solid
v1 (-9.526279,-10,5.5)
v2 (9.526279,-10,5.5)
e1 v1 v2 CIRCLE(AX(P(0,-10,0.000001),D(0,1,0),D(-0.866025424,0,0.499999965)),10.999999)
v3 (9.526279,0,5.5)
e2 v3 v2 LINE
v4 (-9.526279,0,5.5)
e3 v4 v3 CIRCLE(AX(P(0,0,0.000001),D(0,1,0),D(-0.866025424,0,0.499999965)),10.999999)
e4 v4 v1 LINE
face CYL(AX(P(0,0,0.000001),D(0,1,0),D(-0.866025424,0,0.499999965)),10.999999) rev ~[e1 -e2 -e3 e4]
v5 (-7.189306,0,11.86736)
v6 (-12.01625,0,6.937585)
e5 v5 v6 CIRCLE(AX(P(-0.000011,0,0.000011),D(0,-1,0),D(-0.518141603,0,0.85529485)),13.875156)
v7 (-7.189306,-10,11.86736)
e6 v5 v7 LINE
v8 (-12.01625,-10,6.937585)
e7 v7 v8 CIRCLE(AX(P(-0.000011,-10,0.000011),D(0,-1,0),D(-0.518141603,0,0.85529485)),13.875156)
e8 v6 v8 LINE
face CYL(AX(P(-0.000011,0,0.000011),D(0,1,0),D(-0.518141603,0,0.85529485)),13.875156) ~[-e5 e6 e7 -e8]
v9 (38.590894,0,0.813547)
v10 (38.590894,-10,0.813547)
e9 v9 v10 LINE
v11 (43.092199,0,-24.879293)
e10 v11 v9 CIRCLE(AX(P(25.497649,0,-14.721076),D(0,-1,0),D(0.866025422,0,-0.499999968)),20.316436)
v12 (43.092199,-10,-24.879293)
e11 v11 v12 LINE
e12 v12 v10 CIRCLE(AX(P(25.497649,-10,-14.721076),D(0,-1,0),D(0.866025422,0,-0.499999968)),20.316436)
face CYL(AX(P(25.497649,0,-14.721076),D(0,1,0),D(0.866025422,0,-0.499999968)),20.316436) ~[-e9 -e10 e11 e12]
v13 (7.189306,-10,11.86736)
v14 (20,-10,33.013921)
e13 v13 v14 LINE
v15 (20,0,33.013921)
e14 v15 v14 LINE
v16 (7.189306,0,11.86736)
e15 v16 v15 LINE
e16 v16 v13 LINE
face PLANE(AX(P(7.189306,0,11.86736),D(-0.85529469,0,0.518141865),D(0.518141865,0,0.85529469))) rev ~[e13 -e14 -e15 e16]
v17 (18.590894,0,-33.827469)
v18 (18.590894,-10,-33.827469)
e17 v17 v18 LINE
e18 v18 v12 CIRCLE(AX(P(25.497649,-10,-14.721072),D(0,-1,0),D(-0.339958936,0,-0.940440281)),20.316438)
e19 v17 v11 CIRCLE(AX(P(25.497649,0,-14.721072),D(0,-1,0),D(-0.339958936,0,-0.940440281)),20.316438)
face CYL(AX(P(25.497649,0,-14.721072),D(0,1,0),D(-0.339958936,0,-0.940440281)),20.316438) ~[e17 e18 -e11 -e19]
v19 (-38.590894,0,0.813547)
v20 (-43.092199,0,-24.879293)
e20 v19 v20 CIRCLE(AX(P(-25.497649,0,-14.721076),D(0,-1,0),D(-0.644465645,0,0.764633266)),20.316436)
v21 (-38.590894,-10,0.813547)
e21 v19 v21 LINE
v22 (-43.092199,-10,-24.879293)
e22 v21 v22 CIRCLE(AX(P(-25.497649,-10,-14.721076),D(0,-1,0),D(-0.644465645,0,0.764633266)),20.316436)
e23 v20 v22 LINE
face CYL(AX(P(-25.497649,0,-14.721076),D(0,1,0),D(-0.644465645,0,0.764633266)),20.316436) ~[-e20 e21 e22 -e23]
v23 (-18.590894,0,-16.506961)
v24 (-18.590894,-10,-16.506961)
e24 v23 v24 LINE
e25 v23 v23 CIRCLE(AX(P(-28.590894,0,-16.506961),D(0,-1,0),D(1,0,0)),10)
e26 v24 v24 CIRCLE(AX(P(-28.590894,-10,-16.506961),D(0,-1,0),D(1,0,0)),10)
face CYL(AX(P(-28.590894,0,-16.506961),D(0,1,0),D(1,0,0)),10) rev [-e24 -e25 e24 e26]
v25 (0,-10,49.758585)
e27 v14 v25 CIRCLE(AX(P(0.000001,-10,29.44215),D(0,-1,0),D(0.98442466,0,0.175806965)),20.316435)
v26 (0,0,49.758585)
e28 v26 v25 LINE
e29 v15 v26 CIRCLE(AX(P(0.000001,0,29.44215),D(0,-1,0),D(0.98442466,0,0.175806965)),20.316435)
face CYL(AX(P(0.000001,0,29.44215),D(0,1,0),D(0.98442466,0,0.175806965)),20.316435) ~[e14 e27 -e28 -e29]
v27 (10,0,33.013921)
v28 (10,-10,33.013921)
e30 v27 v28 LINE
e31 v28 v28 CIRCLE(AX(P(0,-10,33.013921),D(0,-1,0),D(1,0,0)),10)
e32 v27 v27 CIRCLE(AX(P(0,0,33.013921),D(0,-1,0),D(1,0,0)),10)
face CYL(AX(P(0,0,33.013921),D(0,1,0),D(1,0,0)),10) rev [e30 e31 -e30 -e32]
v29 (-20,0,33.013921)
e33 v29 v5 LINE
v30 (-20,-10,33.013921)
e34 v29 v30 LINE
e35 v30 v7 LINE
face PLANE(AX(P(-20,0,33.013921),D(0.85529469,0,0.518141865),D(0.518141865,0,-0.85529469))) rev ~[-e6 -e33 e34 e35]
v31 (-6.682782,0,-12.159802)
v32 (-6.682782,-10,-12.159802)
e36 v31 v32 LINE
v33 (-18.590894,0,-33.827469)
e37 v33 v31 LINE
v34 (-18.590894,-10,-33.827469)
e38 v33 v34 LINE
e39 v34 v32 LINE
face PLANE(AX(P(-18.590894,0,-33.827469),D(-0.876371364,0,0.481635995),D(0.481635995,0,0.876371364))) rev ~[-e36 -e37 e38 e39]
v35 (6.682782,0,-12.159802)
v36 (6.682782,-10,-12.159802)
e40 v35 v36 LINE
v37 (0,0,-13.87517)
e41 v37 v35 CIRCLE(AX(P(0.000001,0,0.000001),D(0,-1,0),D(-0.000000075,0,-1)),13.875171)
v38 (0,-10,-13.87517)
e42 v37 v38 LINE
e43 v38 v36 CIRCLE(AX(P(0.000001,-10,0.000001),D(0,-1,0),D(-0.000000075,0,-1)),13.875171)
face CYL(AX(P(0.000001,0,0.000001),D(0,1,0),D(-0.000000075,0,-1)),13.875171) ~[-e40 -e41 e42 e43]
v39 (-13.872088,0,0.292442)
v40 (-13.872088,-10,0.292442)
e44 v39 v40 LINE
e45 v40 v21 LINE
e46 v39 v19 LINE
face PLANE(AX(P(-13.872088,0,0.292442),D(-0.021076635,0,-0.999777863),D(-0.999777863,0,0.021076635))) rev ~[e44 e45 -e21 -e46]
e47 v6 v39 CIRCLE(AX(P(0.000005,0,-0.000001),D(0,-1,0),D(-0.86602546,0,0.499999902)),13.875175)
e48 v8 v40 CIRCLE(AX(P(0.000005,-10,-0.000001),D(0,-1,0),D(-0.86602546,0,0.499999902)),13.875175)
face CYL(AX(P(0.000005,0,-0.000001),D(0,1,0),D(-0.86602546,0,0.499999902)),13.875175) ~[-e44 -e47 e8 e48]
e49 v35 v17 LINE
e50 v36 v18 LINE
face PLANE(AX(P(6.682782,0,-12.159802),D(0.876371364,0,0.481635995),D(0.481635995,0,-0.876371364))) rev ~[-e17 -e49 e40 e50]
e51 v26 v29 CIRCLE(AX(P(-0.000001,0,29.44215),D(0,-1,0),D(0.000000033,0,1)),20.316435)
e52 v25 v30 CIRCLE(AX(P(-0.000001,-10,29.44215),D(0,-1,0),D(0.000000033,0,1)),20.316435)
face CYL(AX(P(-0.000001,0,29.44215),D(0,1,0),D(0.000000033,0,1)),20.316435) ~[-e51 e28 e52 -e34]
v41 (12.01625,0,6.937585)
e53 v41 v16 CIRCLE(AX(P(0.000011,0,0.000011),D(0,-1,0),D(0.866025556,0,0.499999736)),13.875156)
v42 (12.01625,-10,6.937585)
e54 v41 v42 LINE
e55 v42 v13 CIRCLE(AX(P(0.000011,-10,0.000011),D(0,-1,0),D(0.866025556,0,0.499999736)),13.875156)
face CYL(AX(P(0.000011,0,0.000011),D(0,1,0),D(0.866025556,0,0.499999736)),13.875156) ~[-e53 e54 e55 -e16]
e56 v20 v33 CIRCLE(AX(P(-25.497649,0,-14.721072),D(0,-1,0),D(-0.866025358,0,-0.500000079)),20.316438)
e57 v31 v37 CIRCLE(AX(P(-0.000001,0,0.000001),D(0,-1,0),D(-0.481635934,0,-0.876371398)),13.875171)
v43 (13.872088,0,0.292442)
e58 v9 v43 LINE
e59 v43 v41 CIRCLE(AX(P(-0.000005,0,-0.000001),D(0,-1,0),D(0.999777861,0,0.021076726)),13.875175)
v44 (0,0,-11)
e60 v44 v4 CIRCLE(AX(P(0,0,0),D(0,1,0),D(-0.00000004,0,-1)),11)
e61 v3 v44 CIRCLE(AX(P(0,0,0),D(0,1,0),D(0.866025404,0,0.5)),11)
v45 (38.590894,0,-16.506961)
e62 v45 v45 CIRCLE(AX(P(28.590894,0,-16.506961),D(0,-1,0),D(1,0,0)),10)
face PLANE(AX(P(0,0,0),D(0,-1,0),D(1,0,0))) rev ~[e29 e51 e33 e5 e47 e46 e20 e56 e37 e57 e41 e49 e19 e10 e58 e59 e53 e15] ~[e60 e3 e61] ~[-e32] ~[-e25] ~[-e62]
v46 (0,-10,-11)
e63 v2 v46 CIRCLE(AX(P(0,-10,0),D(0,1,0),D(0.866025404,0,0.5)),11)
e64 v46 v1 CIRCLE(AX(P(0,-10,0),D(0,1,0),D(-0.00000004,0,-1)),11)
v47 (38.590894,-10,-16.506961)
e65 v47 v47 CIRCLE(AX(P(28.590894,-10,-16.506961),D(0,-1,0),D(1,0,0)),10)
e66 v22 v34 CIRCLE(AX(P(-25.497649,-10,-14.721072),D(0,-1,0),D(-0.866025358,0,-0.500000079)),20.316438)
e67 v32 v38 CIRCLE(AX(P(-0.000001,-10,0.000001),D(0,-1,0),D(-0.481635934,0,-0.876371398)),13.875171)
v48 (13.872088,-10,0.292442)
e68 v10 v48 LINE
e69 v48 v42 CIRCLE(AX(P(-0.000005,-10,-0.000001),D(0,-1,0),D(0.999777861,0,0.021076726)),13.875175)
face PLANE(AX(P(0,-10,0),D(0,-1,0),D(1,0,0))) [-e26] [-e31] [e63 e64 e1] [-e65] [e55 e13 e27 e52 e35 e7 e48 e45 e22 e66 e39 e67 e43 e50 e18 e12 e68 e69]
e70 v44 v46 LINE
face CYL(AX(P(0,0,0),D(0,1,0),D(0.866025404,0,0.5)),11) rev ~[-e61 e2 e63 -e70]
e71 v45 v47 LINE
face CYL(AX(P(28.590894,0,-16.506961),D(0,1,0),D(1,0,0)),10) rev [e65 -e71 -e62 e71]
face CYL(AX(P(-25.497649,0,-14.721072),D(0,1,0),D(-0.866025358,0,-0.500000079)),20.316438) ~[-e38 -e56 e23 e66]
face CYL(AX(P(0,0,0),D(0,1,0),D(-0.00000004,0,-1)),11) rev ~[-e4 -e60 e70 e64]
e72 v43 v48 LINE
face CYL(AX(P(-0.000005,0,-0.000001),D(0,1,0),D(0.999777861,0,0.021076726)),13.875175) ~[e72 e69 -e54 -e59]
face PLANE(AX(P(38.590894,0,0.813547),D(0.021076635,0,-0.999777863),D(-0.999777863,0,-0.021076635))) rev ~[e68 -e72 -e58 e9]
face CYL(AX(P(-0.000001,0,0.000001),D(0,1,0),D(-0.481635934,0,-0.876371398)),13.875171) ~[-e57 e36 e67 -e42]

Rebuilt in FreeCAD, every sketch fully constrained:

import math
import FreeCAD as App
import Part
import Sketcher
from FreeCAD import Vector

doc = App.newDocument("Part")
body = doc.addObject("PartDesign::Body", "Body")

# Sketch on XZ plane
sketch1 = body.newObject("Sketcher::SketchObject", "Sketch")
sketch1.AttachmentSupport = (doc.getObject("XZ_Plane"), [""])
sketch1.MapMode = "FlatFace"
sketch1.addGeometry([
    Part.LineSegment(Vector(-20, 33.013921, 0), Vector(-7.189306, 11.86736, 0)),  # 0
    Part.ArcOfCircle(Part.Circle(Vector(-0.000011, 0.000011, 0), Vector(0, 0, 1), 13.875156), math.radians(121.207676), math.radians(150.000017)),  # 1
    Part.ArcOfCircle(Part.Circle(Vector(0.000005, -0.000001, 0), Vector(0, 0, 1), 13.875175), math.radians(150.000006), math.radians(178.792303)),  # 2
    Part.LineSegment(Vector(-13.872088, 0.292442, 0), Vector(-38.590894, 0.813547, 0)),  # 3
    Part.ArcOfCircle(Part.Circle(Vector(-25.497649, -14.721076, 0), Vector(0, 0, 1), 20.316436), math.radians(130.125623), math.radians(209.999998)),  # 4
    Part.ArcOfCircle(Part.Circle(Vector(-25.497649, -14.721072, 0), Vector(0, 0, 1), 20.316438), math.radians(-149.999995), math.radians(-70.125628)),  # 5
    Part.LineSegment(Vector(-18.590894, -33.827469, 0), Vector(-6.682782, -12.159802, 0)),  # 6
    Part.ArcOfCircle(Part.Circle(Vector(-0.000001, 0.000001, 0), Vector(0, 0, 1), 13.875171), math.radians(-118.792302), math.radians(-89.999996)),  # 7
    Part.ArcOfCircle(Part.Circle(Vector(0.000001, 0.000001, 0), Vector(0, 0, 1), 13.875171), math.radians(-90.000004), math.radians(-61.207698)),  # 8
    Part.LineSegment(Vector(6.682782, -12.159802, 0), Vector(18.590894, -33.827469, 0)),  # 9
    Part.ArcOfCircle(Part.Circle(Vector(25.497649, -14.721072, 0), Vector(0, 0, 1), 20.316438), math.radians(-109.874372), math.radians(-30.000005)),  # 10
    Part.ArcOfCircle(Part.Circle(Vector(25.497649, -14.721076, 0), Vector(0, 0, 1), 20.316436), math.radians(-29.999998), math.radians(49.874377)),  # 11
    Part.LineSegment(Vector(38.590894, 0.813547, 0), Vector(13.872088, 0.292442, 0)),  # 12
    Part.ArcOfCircle(Part.Circle(Vector(-0.000005, -0.000001, 0), Vector(0, 0, 1), 13.875175), math.radians(1.207697), math.radians(29.999994)),  # 13
    Part.ArcOfCircle(Part.Circle(Vector(0.000011, 0.000011, 0), Vector(0, 0, 1), 13.875156), math.radians(29.999983), math.radians(58.792324)),  # 14
    Part.LineSegment(Vector(7.189306, 11.86736, 0), Vector(20, 33.013921, 0)),  # 15
    Part.ArcOfCircle(Part.Circle(Vector(0.000001, 29.44215, 0), Vector(0, 0, 1), 20.316435), math.radians(10.125622), math.radians(90.000002)),  # 16
    Part.ArcOfCircle(Part.Circle(Vector(-0.000001, 29.44215, 0), Vector(0, 0, 1), 20.316435), math.radians(89.999998), math.radians(169.874378)),  # 17
    Part.Circle(Vector(-28.590894, -16.506961, 0), Vector(0, 0, 1), 10),  # 18
    Part.Circle(Vector(28.590894, -16.506961, 0), Vector(0, 0, 1), 10),  # 19
    Part.ArcOfCircle(Part.Circle(Vector(0, 0, 0), Vector(0, 0, 1), 11), math.radians(150), math.radians(269.999998)),  # 20
    Part.ArcOfCircle(Part.Circle(Vector(0, 0.000001, 0), Vector(0, 0, 1), 10.999999), math.radians(29.999998), math.radians(150.000002)),  # 21
    Part.ArcOfCircle(Part.Circle(Vector(0, 0, 0), Vector(0, 0, 1), 11), math.radians(-89.999998), math.radians(30)),  # 22
    Part.Circle(Vector(0, 33.013921, 0), Vector(0, 0, 1), 10),  # 23
], False)
sketch1.addConstraint([
    Sketcher.Constraint("Coincident", 0, 2, 1, 1),
    Sketcher.Constraint("Tangent", 1, 2, 2, 1),
    Sketcher.Constraint("Coincident", 2, 2, 3, 1),
    Sketcher.Constraint("Coincident", 3, 2, 4, 1),
    Sketcher.Constraint("Tangent", 4, 2, 5, 1),
    Sketcher.Constraint("Coincident", 5, 2, 6, 1),
    Sketcher.Constraint("Coincident", 6, 2, 7, 1),
    Sketcher.Constraint("Tangent", 7, 2, 8, 1),
    Sketcher.Constraint("Coincident", 8, 2, 9, 1),
    Sketcher.Constraint("Coincident", 9, 2, 10, 1),
    Sketcher.Constraint("Tangent", 10, 2, 11, 1),
    Sketcher.Constraint("Coincident", 11, 2, 12, 1),
    Sketcher.Constraint("Coincident", 12, 2, 13, 1),
    Sketcher.Constraint("Tangent", 13, 2, 14, 1),
    Sketcher.Constraint("Coincident", 14, 2, 15, 1),
    Sketcher.Constraint("Coincident", 15, 2, 16, 1),
    Sketcher.Constraint("Tangent", 16, 2, 17, 1),
    Sketcher.Constraint("Coincident", 17, 2, 0, 1),
    Sketcher.Constraint("Tangent", 20, 1, 21, 2),
    Sketcher.Constraint("Tangent", 21, 1, 22, 2),
    Sketcher.Constraint("Tangent", 22, 1, 20, 2),
    Sketcher.Constraint("Coincident", 2, 3, -1, 1),
    Sketcher.Constraint("Coincident", 7, 3, -1, 1),
    Sketcher.Constraint("Coincident", 13, 3, -1, 1),
    Sketcher.Constraint("Coincident", 20, 3, -1, 1),
    Sketcher.Constraint("Equal", 7, 8),
    Sketcher.Constraint("Equal", 5, 10),
    Sketcher.Constraint("Equal", 4, 11),
    Sketcher.Constraint("Equal", 2, 13),
    Sketcher.Constraint("Equal", 1, 14),
    Sketcher.Constraint("Equal", 11, 16),
    Sketcher.Constraint("Equal", 16, 17),
    Sketcher.Constraint("Equal", 18, 19),
    Sketcher.Constraint("Equal", 19, 23),
    Sketcher.Constraint("Symmetric", 4, 3, 10, 3, -2),
    Sketcher.Constraint("Symmetric", 18, 3, 19, 3, -2),
    Sketcher.Constraint("Symmetric", 5, 2, 9, 2, -2),
    Sketcher.Constraint("Symmetric", 15, 2, 17, 2, -2),
    Sketcher.Constraint("PointOnObject", 23, 3, -2),
    Sketcher.Constraint("PointOnObject", 7, 2, -2),
    Sketcher.Constraint("PointOnObject", 16, 2, -2),
    Sketcher.Constraint("PointOnObject", 22, 1, -2),
    Sketcher.Constraint("Horizontal", 6, 2, 8, 2),
    Sketcher.Constraint("Horizontal", 4, 2, 10, 2),
    Sketcher.Constraint("Horizontal", 3, 2, 11, 2),
    Sketcher.Constraint("Horizontal", 2, 2, 12, 2),
    Sketcher.Constraint("Horizontal", 1, 2, 13, 2),
    Sketcher.Constraint("Horizontal", 0, 2, 14, 2),
    Sketcher.Constraint("Horizontal", 23, 3, 15, 2),
    Sketcher.Constraint("Horizontal", 20, 1, 21, 1),
    Sketcher.Constraint("Equal", 0, 3),
    Sketcher.Constraint("Equal", 3, 6),
    Sketcher.Constraint("Diameter", 18, 20.0),
    Sketcher.Constraint("Radius", 20, 11.0),
    Sketcher.Constraint("DistanceX", -1, 1, 15, 2, 20.0),
    Sketcher.Constraint("DistanceX", 3, 2, 18, 3, 10.0),
    Sketcher.Constraint("DistanceX", 18, 3, 5, 2, 10.0),
    Sketcher.Constraint("DistanceY", -1, 1, 20, 1, 5.5),
    Sketcher.Constraint("Radius", 7, 13.875171),
    Sketcher.Constraint("Radius", 1, 13.875156),
    Sketcher.Constraint("Radius", 2, 13.875175),
    Sketcher.Constraint("Radius", 4, 20.316436),
    Sketcher.Constraint("Distance", 0, 24.724298),
    Sketcher.Constraint("DistanceX", 4, 2, -1, 1, 43.092199),
    Sketcher.Constraint("DistanceX", 0, 2, 13, 3, 7.189301),
    Sketcher.Constraint("DistanceY", 6, 2, 13, 3, 12.159801),
    Sketcher.Constraint("DistanceX", 4, 3, -1, 1, 25.497649),
    Sketcher.Constraint("DistanceY", 18, 3, -1, 1, 16.506961),
    Sketcher.Constraint("DistanceX", 1, 2, -1, 1, 12.01625),
    Sketcher.Constraint("DistanceY", -1, 1, 2, 2, 0.292442),
])
pad1 = body.newObject("PartDesign::Pad", "Pad")
pad1.Profile = sketch1
pad1.Length = 10

doc.recompute()
